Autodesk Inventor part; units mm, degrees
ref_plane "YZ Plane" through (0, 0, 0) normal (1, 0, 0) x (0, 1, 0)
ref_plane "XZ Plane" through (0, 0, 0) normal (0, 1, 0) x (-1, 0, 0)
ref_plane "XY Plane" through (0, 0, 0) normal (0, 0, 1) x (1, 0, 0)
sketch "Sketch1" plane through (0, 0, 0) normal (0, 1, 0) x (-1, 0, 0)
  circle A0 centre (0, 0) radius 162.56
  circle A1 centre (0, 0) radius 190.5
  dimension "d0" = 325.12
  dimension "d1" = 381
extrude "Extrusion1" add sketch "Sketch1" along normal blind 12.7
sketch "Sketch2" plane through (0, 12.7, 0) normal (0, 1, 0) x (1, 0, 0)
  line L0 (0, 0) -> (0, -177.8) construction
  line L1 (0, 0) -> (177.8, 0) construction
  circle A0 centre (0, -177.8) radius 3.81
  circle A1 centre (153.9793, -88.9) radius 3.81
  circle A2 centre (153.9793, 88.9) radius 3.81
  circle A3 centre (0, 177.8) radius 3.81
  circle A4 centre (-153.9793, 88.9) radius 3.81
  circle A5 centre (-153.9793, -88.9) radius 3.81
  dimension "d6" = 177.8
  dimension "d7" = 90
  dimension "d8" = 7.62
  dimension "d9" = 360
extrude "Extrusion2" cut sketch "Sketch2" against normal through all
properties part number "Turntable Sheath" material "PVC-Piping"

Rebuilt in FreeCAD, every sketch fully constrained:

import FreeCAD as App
import Part
import Sketcher

V = App.Vector
Q = App.Units.Quantity

doc = App.newDocument("Part")
body = doc.addObject("PartDesign::Body", "Body")

# Sketch on XZ plane
sketch1 = doc.addObject("Sketcher::SketchObject", "Sketch")
body.addObject(sketch1)
sketch1.AttachmentSupport = (doc.XZ_Plane, [""])
sketch1.MapMode = "FlatFace"
sketch1.addGeometry([
    Part.Circle(V(0, 0, 0), V(0, 0, 1), 190.5),
    Part.Circle(V(0, 0, 0), V(0, 0, 1), 162.56),
], False)
sketch1.addConstraint([
    Sketcher.Constraint("Coincident", 0, 3, -1, 1),
    Sketcher.Constraint("Coincident", 1, 3, -1, 1),
    Sketcher.Constraint("Diameter", 0, Q("15 in")),
    Sketcher.Constraint("Diameter", 1, Q("12.8 in")),
])
pad1 = doc.addObject("PartDesign::Pad", "Pad")
body.addObject(pad1)
pad1.Profile = sketch1
pad1.Length = Q("0.5 in")
pad1.Reversed = True

# Sketch on XZ plane
sketch2 = doc.addObject("Sketcher::SketchObject", "Sketch001")
body.addObject(sketch2)
sketch2.AttachmentSupport = (doc.XZ_Plane, [""])
sketch2.MapMode = "FlatFace"
sketch2.AttachmentOffset = App.Placement(V(0, 0, -0.5 * 25.4), App.Rotation())
sketch2.addGeometry([
    Part.Circle(V(0, 177.8, 0), V(0, 0, 1), 3.81),  # 0
    Part.Circle(V(153.9793, 88.9, 0), V(0, 0, 1), 3.81),  # 1
    Part.Circle(V(153.9793, -88.9, 0), V(0, 0, 1), 3.81),  # 2
    Part.Circle(V(0, -177.8, 0), V(0, 0, 1), 3.81),  # 3
    Part.Circle(V(-153.9793, -88.9, 0), V(0, 0, 1), 3.81),  # 4
    Part.Circle(V(-153.9793, 88.9, 0), V(0, 0, 1), 3.81),  # 5
], False)
sketch2.addConstraint([
    Sketcher.Constraint("Equal", 0, 1),
    Sketcher.Constraint("Equal", 1, 2),
    Sketcher.Constraint("Equal", 2, 3),
    Sketcher.Constraint("Equal", 3, 4),
    Sketcher.Constraint("Equal", 4, 5),
    Sketcher.Constraint("Symmetric", 0, 3, 3, 3, -1, 1),
    Sketcher.Constraint("Symmetric", 1, 3, 4, 3, -1, 1),
    Sketcher.Constraint("Symmetric", 2, 3, 5, 3, -1, 1),
    Sketcher.Constraint("Symmetric", 2, 3, 4, 3, -2),
    Sketcher.Constraint("PointOnObject", 0, 3, -2),
    Sketcher.Constraint("Diameter", 0, Q("0.3 in")),
    Sketcher.Constraint("DistanceY", -1, 1, 0, 3, Q("7 in")),
    Sketcher.Constraint("DistanceY", 2, 3, 1, 3, Q("7 in")),
    Sketcher.Constraint("DistanceX", -1, 1, 1, 3, 153.9793),
])
pocket1 = doc.addObject("PartDesign::Pocket", "Pocket")
body.addObject(pocket1)
pocket1.Profile = sketch2
pocket1.Type = "ThroughAll"
pocket1.Reversed = True

doc.recompute()
